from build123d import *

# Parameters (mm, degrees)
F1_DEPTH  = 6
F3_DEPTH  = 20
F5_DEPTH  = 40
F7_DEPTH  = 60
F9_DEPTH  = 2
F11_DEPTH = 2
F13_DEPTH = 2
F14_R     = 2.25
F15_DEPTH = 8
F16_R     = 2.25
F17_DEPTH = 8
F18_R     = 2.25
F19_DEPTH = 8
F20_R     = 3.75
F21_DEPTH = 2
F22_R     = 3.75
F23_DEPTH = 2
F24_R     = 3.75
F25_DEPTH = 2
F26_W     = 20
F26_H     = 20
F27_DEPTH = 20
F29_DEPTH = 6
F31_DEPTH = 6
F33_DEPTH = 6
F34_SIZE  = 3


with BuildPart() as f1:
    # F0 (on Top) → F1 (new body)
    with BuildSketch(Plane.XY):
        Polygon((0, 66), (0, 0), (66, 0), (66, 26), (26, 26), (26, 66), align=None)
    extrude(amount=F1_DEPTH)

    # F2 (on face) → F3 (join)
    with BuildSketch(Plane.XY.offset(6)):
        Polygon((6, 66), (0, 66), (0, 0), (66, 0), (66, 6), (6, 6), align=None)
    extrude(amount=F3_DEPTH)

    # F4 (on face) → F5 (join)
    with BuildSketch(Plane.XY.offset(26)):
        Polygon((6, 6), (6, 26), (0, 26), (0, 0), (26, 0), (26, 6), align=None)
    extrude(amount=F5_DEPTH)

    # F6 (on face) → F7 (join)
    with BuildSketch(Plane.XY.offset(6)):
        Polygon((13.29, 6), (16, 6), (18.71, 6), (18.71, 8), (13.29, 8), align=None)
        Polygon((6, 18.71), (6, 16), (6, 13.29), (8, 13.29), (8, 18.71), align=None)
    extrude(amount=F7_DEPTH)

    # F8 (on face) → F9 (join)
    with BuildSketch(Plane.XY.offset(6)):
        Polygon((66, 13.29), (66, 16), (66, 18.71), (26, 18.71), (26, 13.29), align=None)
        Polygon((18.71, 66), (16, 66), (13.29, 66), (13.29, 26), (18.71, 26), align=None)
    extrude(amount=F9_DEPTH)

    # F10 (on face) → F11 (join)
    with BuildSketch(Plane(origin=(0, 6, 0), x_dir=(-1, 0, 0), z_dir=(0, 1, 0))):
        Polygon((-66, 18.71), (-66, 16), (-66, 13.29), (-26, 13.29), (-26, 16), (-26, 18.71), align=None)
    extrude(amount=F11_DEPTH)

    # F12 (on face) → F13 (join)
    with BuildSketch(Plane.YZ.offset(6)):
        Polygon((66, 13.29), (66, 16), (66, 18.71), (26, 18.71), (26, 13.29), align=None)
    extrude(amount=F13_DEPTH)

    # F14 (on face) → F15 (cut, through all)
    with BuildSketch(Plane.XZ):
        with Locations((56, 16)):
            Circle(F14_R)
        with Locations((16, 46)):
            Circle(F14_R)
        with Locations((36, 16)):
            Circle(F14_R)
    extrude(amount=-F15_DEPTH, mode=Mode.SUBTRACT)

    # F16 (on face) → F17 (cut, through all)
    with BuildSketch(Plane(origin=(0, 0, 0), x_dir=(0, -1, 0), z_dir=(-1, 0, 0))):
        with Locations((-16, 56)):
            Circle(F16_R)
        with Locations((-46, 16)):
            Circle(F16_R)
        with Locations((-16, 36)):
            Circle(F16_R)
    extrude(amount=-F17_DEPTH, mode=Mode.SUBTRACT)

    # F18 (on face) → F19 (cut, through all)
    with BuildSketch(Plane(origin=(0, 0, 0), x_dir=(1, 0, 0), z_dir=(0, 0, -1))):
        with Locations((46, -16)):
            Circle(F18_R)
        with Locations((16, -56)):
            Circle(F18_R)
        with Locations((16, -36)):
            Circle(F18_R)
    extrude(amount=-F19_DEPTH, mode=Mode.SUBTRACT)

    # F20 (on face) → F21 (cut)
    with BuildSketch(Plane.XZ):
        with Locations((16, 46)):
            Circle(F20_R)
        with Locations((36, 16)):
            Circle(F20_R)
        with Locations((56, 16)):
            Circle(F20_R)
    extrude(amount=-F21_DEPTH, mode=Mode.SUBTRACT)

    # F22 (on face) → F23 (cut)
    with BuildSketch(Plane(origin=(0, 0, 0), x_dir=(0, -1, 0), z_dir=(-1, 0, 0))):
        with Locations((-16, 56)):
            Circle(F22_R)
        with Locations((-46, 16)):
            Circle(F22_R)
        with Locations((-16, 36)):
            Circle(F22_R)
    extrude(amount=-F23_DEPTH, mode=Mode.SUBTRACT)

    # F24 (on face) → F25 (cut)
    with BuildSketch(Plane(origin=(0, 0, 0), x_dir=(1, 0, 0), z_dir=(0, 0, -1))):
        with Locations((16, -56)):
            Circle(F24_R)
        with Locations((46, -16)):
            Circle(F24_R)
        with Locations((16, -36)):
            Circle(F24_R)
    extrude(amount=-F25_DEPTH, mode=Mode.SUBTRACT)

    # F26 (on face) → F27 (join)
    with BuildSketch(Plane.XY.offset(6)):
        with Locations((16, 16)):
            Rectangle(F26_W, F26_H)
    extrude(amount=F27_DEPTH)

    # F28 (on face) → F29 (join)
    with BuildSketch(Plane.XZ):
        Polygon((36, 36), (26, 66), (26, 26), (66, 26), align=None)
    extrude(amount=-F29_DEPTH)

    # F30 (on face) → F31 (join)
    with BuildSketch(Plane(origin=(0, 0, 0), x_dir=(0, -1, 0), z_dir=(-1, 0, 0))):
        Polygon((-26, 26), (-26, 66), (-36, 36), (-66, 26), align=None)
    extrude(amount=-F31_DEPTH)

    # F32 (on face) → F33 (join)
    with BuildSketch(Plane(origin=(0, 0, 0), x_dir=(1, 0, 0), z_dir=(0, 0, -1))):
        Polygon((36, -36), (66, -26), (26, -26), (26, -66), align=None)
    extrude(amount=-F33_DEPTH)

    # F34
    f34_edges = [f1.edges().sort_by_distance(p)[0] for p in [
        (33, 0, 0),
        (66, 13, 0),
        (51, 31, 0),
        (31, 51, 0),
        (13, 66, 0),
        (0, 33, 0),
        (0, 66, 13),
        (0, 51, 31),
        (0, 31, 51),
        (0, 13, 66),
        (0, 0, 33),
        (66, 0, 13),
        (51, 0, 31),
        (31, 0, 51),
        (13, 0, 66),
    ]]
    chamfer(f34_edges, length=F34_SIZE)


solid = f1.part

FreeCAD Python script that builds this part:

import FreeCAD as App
import Part
import Sketcher
Q = App.Units.Quantity


def edges_at(feature, points):
    """Names of the edges that pass closest to the given points."""
    edges = feature.Shape.Edges
    near = lambda p: min(range(len(edges)), key=lambda i: edges[i].distToShape(Part.Vertex(*p))[0])
    return sorted({f"Edge{near(p) + 1}" for p in points})

doc = App.newDocument("Part")
body = doc.addObject("PartDesign::Body", "Body")

# Sketch on XY plane
sketch1 = body.newObject("Sketcher::SketchObject", "Sketch")
sketch1.AttachmentSupport = (doc.getObject("XY_Plane"), [""])
sketch1.MapMode = "FlatFace"
sketch1.addGeometry([
    Part.LineSegment(App.Vector(0, 66, 0), App.Vector(0, 0, 0)),  # 0
    Part.LineSegment(App.Vector(0, 0, 0), App.Vector(66, 0, 0)),  # 1
    Part.LineSegment(App.Vector(66, 0, 0), App.Vector(66, 26, 0)),  # 2
    Part.LineSegment(App.Vector(66, 26, 0), App.Vector(26, 26, 0)),  # 3
    Part.LineSegment(App.Vector(26, 26, 0), App.Vector(26, 66, 0)),  # 4
    Part.LineSegment(App.Vector(26, 66, 0), App.Vector(0, 66, 0)),  # 5
], False)
sketch1.addConstraint([
    Sketcher.Constraint("Coincident", 0, 2, 1, 1),
    Sketcher.Constraint("Coincident", 1, 2, 2, 1),
    Sketcher.Constraint("Coincident", 2, 2, 3, 1),
    Sketcher.Constraint("Coincident", 3, 2, 4, 1),
    Sketcher.Constraint("Coincident", 4, 2, 5, 1),
    Sketcher.Constraint("Coincident", 5, 2, 0, 1),
    Sketcher.Constraint("Vertical", 0),
    Sketcher.Constraint("Horizontal", 1),
    Sketcher.Constraint("Vertical", 2),
    Sketcher.Constraint("Horizontal", 3),
    Sketcher.Constraint("Vertical", 4),
    Sketcher.Constraint("Horizontal", 5),
    Sketcher.Constraint("Coincident", 0, 2, -1, 1),
    Sketcher.Constraint("Equal", 1, 0),
    Sketcher.Constraint("Equal", 5, 2),
    Sketcher.Constraint("DistanceX", 1, 1, 1, 2, Q("66 mm")),
    Sketcher.Constraint("DistanceX", 3, 2, 3, 1, Q("40 mm")),
])
pad1 = body.newObject("PartDesign::Pad", "Pad")
pad1.Profile = sketch1
pad1.Length = 6

# Sketch on XY plane
sketch2 = body.newObject("Sketcher::SketchObject", "Sketch001")
sketch2.AttachmentSupport = (doc.getObject("XY_Plane"), [""])
sketch2.MapMode = "FlatFace"
sketch2.AttachmentOffset = App.Placement(App.Vector(0, 0, 6), App.Rotation())
sketch2.addGeometry([
    Part.LineSegment(App.Vector(6, 66, 0), App.Vector(0, 66, 0)),  # 0
    Part.LineSegment(App.Vector(0, 66, 0), App.Vector(0, 0, 0)),  # 1
    Part.LineSegment(App.Vector(0, 0, 0), App.Vector(66, 0, 0)),  # 2
    Part.LineSegment(App.Vector(66, 0, 0), App.Vector(66, 6, 0)),  # 3
    Part.LineSegment(App.Vector(66, 6, 0), App.Vector(6, 6, 0)),  # 4
    Part.LineSegment(App.Vector(6, 6, 0), App.Vector(6, 66, 0)),  # 5
], False)
sketch2.addConstraint([
    Sketcher.Constraint("Coincident", 0, 2, 1, 1),
    Sketcher.Constraint("Coincident", 1, 2, 2, 1),
    Sketcher.Constraint("Coincident", 2, 2, 3, 1),
    Sketcher.Constraint("Coincident", 3, 2, 4, 1),
    Sketcher.Constraint("Coincident", 4, 2, 5, 1),
    Sketcher.Constraint("Coincident", 5, 2, 0, 1),
    Sketcher.Constraint("Horizontal", 0),
    Sketcher.Constraint("Vertical", 1),
    Sketcher.Constraint("Horizontal", 2),
    Sketcher.Constraint("Vertical", 3),
    Sketcher.Constraint("Horizontal", 4),
    Sketcher.Constraint("Vertical", 5),
    Sketcher.Constraint("Coincident", 1, 2, -1, 1),
    Sketcher.Constraint("Equal", 2, 1),
    Sketcher.Constraint("Equal", 0, 3),
    Sketcher.Constraint("DistanceX", 0, 2, 0, 1, Q("6 mm")),
    Sketcher.Constraint("DistanceX", 2, 1, 2, 2, Q("66 mm")),
])
pad2 = body.newObject("PartDesign::Pad", "Pad001")
pad2.Profile = sketch2
pad2.Length = 20

# Sketch on XY plane
sketch3 = body.newObject("Sketcher::SketchObject", "Sketch002")
sketch3.AttachmentSupport = (doc.getObject("XY_Plane"), [""])
sketch3.MapMode = "FlatFace"
sketch3.AttachmentOffset = App.Placement(App.Vector(0, 0, 26), App.Rotation())
sketch3.addGeometry([
    Part.LineSegment(App.Vector(6, 6, 0), App.Vector(6, 26, 0)),  # 0
    Part.LineSegment(App.Vector(6, 26, 0), App.Vector(0, 26, 0)),  # 1
    Part.LineSegment(App.Vector(0, 26, 0), App.Vector(0, 0, 0)),  # 2
    Part.LineSegment(App.Vector(0, 0, 0), App.Vector(26, 0, 0)),  # 3
    Part.LineSegment(App.Vector(26, 0, 0), App.Vector(26, 6, 0)),  # 4
    Part.LineSegment(App.Vector(26, 6, 0), App.Vector(6, 6, 0)),  # 5
], False)
sketch3.addConstraint([
    Sketcher.Constraint("Coincident", 0, 2, 1, 1),
    Sketcher.Constraint("Coincident", 1, 2, 2, 1),
    Sketcher.Constraint("Coincident", 2, 2, 3, 1),
    Sketcher.Constraint("Coincident", 3, 2, 4, 1),
    Sketcher.Constraint("Coincident", 4, 2, 5, 1),
    Sketcher.Constraint("Coincident", 5, 2, 0, 1),
    Sketcher.Constraint("Vertical", 0),
    Sketcher.Constraint("Horizontal", 1),
    Sketcher.Constraint("Vertical", 2),
    Sketcher.Constraint("Horizontal", 3),
    Sketcher.Constraint("Vertical", 4),
    Sketcher.Constraint("Horizontal", 5),
    Sketcher.Constraint("Coincident", 2, 2, -1, 1),
    Sketcher.Constraint("Equal", 5, 0),
    Sketcher.Constraint("Equal", 3, 2),
    Sketcher.Constraint("DistanceX", 1, 2, 1, 1, Q("6 mm")),
    Sketcher.Constraint("DistanceX", 3, 1, 3, 2, Q("26 mm")),
])
pad3 = body.newObject("PartDesign::Pad", "Pad002")
pad3.Profile = sketch3
pad3.Length = 40

# Sketch on XY plane
sketch4 = body.newObject("Sketcher::SketchObject", "Sketch003")
sketch4.AttachmentSupport = (doc.getObject("XY_Plane"), [""])
sketch4.MapMode = "FlatFace"
sketch4.AttachmentOffset = App.Placement(App.Vector(0, 0, 6), App.Rotation())
sketch4.addGeometry([
    Part.LineSegment(App.Vector(13.29, 6, 0), App.Vector(18.71, 6, 0)),  # 0
    Part.LineSegment(App.Vector(18.71, 6, 0), App.Vector(18.71, 8, 0)),  # 1
    Part.LineSegment(App.Vector(18.71, 8, 0), App.Vector(13.29, 8, 0)),  # 2
    Part.LineSegment(App.Vector(13.29, 8, 0), App.Vector(13.29, 6, 0)),  # 3
    Part.LineSegment(App.Vector(6, 18.71, 0), App.Vector(6, 13.29, 0)),  # 4
    Part.LineSegment(App.Vector(6, 13.29, 0), App.Vector(8, 13.29, 0)),  # 5
    Part.LineSegment(App.Vector(8, 13.29, 0), App.Vector(8, 18.71, 0)),  # 6
    Part.LineSegment(App.Vector(8, 18.71, 0), App.Vector(6, 18.71, 0)),  # 7
], False)
sketch4.addConstraint([
    Sketcher.Constraint("Coincident", 0, 2, 1, 1),
    Sketcher.Constraint("Coincident", 1, 2, 2, 1),
    Sketcher.Constraint("Coincident", 2, 2, 3, 1),
    Sketcher.Constraint("Coincident", 3, 2, 0, 1),
    Sketcher.Constraint("Coincident", 4, 2, 5, 1),
    Sketcher.Constraint("Coincident", 5, 2, 6, 1),
    Sketcher.Constraint("Coincident", 6, 2, 7, 1),
    Sketcher.Constraint("Coincident", 7, 2, 4, 1),
    Sketcher.Constraint("Horizontal", 0),
    Sketcher.Constraint("Vertical", 1),
    Sketcher.Constraint("Horizontal", 2),
    Sketcher.Constraint("Vertical", 3),
    Sketcher.Constraint("Vertical", 4),
    Sketcher.Constraint("Horizontal", 5),
    Sketcher.Constraint("Vertical", 6),
    Sketcher.Constraint("Horizontal", 7),
    Sketcher.Constraint("Equal", 7, 1),
    Sketcher.Constraint("Equal", 2, 4),
    Sketcher.Constraint("DistanceX", 5, 1, 5, 2, Q("2 mm")),
    Sketcher.Constraint("DistanceY", -1, 1, 0, 2, Q("6 mm")),
    Sketcher.Constraint("DistanceX", -1, 1, 4, 2, Q("6 mm")),
    Sketcher.Constraint("DistanceX", 0, 1, 0, 2, Q("5.42 mm")),
    Sketcher.Constraint("DistanceX", -1, 1, 0, 2, Q("18.71 mm")),
    Sketcher.Constraint("DistanceY", -1, 1, 4, 2, Q("13.29 mm")),
])
pad4 = body.newObject("PartDesign::Pad", "Pad003")
pad4.Profile = sketch4
pad4.Length = 60

# Sketch on XY plane
sketch5 = body.newObject("Sketcher::SketchObject", "Sketch004")
sketch5.AttachmentSupport = (doc.getObject("XY_Plane"), [""])
sketch5.MapMode = "FlatFace"
sketch5.AttachmentOffset = App.Placement(App.Vector(0, 0, 6), App.Rotation())
sketch5.addGeometry([
    Part.LineSegment(App.Vector(66, 13.29, 0), App.Vector(66, 18.71, 0)),  # 0
    Part.LineSegment(App.Vector(66, 18.71, 0), App.Vector(26, 18.71, 0)),  # 1
    Part.LineSegment(App.Vector(26, 18.71, 0), App.Vector(26, 13.29, 0)),  # 2
    Part.LineSegment(App.Vector(26, 13.29, 0), App.Vector(66, 13.29, 0)),  # 3
    Part.LineSegment(App.Vector(18.71, 66, 0), App.Vector(13.29, 66, 0)),  # 4
    Part.LineSegment(App.Vector(13.29, 66, 0), App.Vector(13.29, 26, 0)),  # 5
    Part.LineSegment(App.Vector(13.29, 26, 0), App.Vector(18.71, 26, 0)),  # 6
    Part.LineSegment(App.Vector(18.71, 26, 0), App.Vector(18.71, 66, 0)),  # 7
], False)
sketch5.addConstraint([
    Sketcher.Constraint("Coincident", 0, 2, 1, 1),
    Sketcher.Constraint("Coincident", 1, 2, 2, 1),
    Sketcher.Constraint("Coincident", 2, 2, 3, 1),
    Sketcher.Constraint("Coincident", 3, 2, 0, 1),
    Sketcher.Constraint("Coincident", 4, 2, 5, 1),
    Sketcher.Constraint("Coincident", 5, 2, 6, 1),
    Sketcher.Constraint("Coincident", 6, 2, 7, 1),
    Sketcher.Constraint("Coincident", 7, 2, 4, 1),
    Sketcher.Constraint("Vertical", 0),
    Sketcher.Constraint("Horizontal", 1),
    Sketcher.Constraint("Vertical", 2),
    Sketcher.Constraint("Horizontal", 3),
    Sketcher.Constraint("Horizontal", 4),
    Sketcher.Constraint("Vertical", 5),
    Sketcher.Constraint("Horizontal", 6),
    Sketcher.Constraint("Vertical", 7),
    Sketcher.Constraint("Equal", 6, 0),
    Sketcher.Constraint("Equal", 3, 5),
    Sketcher.Constraint("DistanceX", 1, 2, 1, 1, Q("40 mm")),
    Sketcher.Constraint("DistanceX", -1, 1, 0, 2, Q("66 mm")),
    Sketcher.Constraint("DistanceY", -1, 1, 4, 2, Q("66 mm")),
    Sketcher.Constraint("DistanceX", 4, 2, 4, 1, Q("5.42 mm")),
    Sketcher.Constraint("DistanceY", -1, 1, 0, 2, Q("18.71 mm")),
    Sketcher.Constraint("DistanceX", -1, 1, 4, 2, Q("13.29 mm")),
])
pad5 = body.newObject("PartDesign::Pad", "Pad004")
pad5.Profile = sketch5
pad5.Length = 2

# Sketch on XZ plane
sketch6 = body.newObject("Sketcher::SketchObject", "Sketch005")
sketch6.AttachmentSupport = (doc.getObject("XZ_Plane"), [""])
sketch6.MapMode = "FlatFace"
sketch6.AttachmentOffset = App.Placement(App.Vector(0, 0, -6), App.Rotation())
sketch6.addGeometry([
    Part.LineSegment(App.Vector(66, 18.71, 0), App.Vector(66, 13.29, 0)),
    Part.LineSegment(App.Vector(66, 13.29, 0), App.Vector(26, 13.29, 0)),
    Part.LineSegment(App.Vector(26, 13.29, 0), App.Vector(26, 18.71, 0)),
    Part.LineSegment(App.Vector(26, 18.71, 0), App.Vector(66, 18.71, 0)),
], False)
sketch6.addConstraint([
    Sketcher.Constraint("Coincident", 0, 2, 1, 1),
    Sketcher.Constraint("Coincident", 1, 2, 2, 1),
    Sketcher.Constraint("Coincident", 2, 2, 3, 1),
    Sketcher.Constraint("Coincident", 3, 2, 0, 1),
    Sketcher.Constraint("Vertical", 0),
    Sketcher.Constraint("Horizontal", 1),
    Sketcher.Constraint("Vertical", 2),
    Sketcher.Constraint("Horizontal", 3),
    Sketcher.Constraint("DistanceX", 1, 2, 1, 1, Q("40 mm")),
    Sketcher.Constraint("DistanceX", -1, 1, 0, 2, Q("66 mm")),
    Sketcher.Constraint("DistanceY", 0, 2, 0, 1, Q("5.42 mm")),
    Sketcher.Constraint("DistanceY", -1, 1, 0, 2, Q("13.29 mm")),
])
pad6 = body.newObject("PartDesign::Pad", "Pad005")
pad6.Profile = sketch6
pad6.Length = 2
pad6.Reversed = True

# Sketch on YZ plane
sketch7 = body.newObject("Sketcher::SketchObject", "Sketch006")
sketch7.AttachmentSupport = (doc.getObject("YZ_Plane"), [""])
sketch7.MapMode = "FlatFace"
sketch7.AttachmentOffset = App.Placement(App.Vector(0, 0, 6), App.Rotation())
sketch7.addGeometry([
    Part.LineSegment(App.Vector(66, 13.29, 0), App.Vector(66, 18.71, 0)),
    Part.LineSegment(App.Vector(66, 18.71, 0), App.Vector(26, 18.71, 0)),
    Part.LineSegment(App.Vector(26, 18.71, 0), App.Vector(26, 13.29, 0)),
    Part.LineSegment(App.Vector(26, 13.29, 0), App.Vector(66, 13.29, 0)),
], False)
sketch7.addConstraint([
    Sketcher.Constraint("Coincident", 0, 2, 1, 1),
    Sketcher.Constraint("Coincident", 1, 2, 2, 1),
    Sketcher.Constraint("Coincident", 2, 2, 3, 1),
    Sketcher.Constraint("Coincident", 3, 2, 0, 1),
    Sketcher.Constraint("Vertical", 0),
    Sketcher.Constraint("Horizontal", 1),
    Sketcher.Constraint("Vertical", 2),
    Sketcher.Constraint("Horizontal", 3),
    Sketcher.Constraint("DistanceX", 1, 2, 1, 1, Q("40 mm")),
    Sketcher.Constraint("DistanceX", -1, 1, 0, 2, Q("66 mm")),
    Sketcher.Constraint("DistanceY", 0, 1, 0, 2, Q("5.42 mm")),
    Sketcher.Constraint("DistanceY", -1, 1, 0, 2, Q("18.71 mm")),
])
pad7 = body.newObject("PartDesign::Pad", "Pad006")
pad7.Profile = sketch7
pad7.Length = 2

# Sketch on XZ plane
sketch8 = body.newObject("Sketcher::SketchObject", "Sketch007")
sketch8.AttachmentSupport = (doc.getObject("XZ_Plane"), [""])
sketch8.MapMode = "FlatFace"
sketch8.addGeometry([
    Part.Circle(App.Vector(56, 16, 0), App.Vector(0, 0, 1), 2.25),
    Part.Circle(App.Vector(16, 46, 0), App.Vector(0, 0, 1), 2.25),
    Part.Circle(App.Vector(36, 16, 0), App.Vector(0, 0, 1), 2.25),
], False)
sketch8.addConstraint([
    Sketcher.Constraint("Equal", 0, 1),
    Sketcher.Constraint("Equal", 1, 2),
    Sketcher.Constraint("Horizontal", 0, 3, 2, 3),
    Sketcher.Constraint("Diameter", 0, Q("4.5 mm")),
    Sketcher.Constraint("DistanceX", -1, 1, 0, 3, Q("56 mm")),
    Sketcher.Constraint("DistanceY", -1, 1, 0, 3, Q("16 mm")),
    Sketcher.Constraint("DistanceX", -1, 1, 1, 3, Q("16 mm")),
    Sketcher.Constraint("DistanceY", -1, 1, 1, 3, Q("46 mm")),
    Sketcher.Constraint("DistanceX", -1, 1, 2, 3, Q("36 mm")),
])
pocket1 = body.newObject("PartDesign::Pocket", "Pocket")
pocket1.Profile = sketch8
pocket1.Type = "ThroughAll"

# Sketch on YZ plane
sketch9 = body.newObject("Sketcher::SketchObject", "Sketch008")
sketch9.AttachmentSupport = (doc.getObject("YZ_Plane"), [""])
sketch9.MapMode = "FlatFace"
sketch9.addGeometry([
    Part.Circle(App.Vector(16, 56, 0), App.Vector(0, 0, 1), 2.25),
    Part.Circle(App.Vector(46, 16, 0), App.Vector(0, 0, 1), 2.25),
    Part.Circle(App.Vector(16, 36, 0), App.Vector(0, 0, 1), 2.25),
], False)
sketch9.addConstraint([
    Sketcher.Constraint("Equal", 0, 1),
    Sketcher.Constraint("Equal", 1, 2),
    Sketcher.Constraint("Vertical", 0, 3, 2, 3),
    Sketcher.Constraint("Diameter", 0, Q("4.5 mm")),
    Sketcher.Constraint("DistanceX", -1, 1, 0, 3, Q("16 mm")),
    Sketcher.Constraint("DistanceY", -1, 1, 0, 3, Q("56 mm")),
    Sketcher.Constraint("DistanceX", -1, 1, 1, 3, Q("46 mm")),
    Sketcher.Constraint("DistanceY", -1, 1, 1, 3, Q("16 mm")),
    Sketcher.Constraint("DistanceY", -1, 1, 2, 3, Q("36 mm")),
])
pocket2 = body.newObject("PartDesign::Pocket", "Pocket001")
pocket2.Profile = sketch9
pocket2.Type = "ThroughAll"
pocket2.Reversed = True

# Sketch on XY plane
sketch10 = body.newObject("Sketcher::SketchObject", "Sketch009")
sketch10.AttachmentSupport = (doc.getObject("XY_Plane"), [""])
sketch10.MapMode = "FlatFace"
sketch10.addGeometry([
    Part.Circle(App.Vector(46, 16, 0), App.Vector(0, 0, 1), 2.25),
    Part.Circle(App.Vector(16, 56, 0), App.Vector(0, 0, 1), 2.25),
    Part.Circle(App.Vector(16, 36, 0), App.Vector(0, 0, 1), 2.25),
], False)
sketch10.addConstraint([
    Sketcher.Constraint("Equal", 0, 1),
    Sketcher.Constraint("Equal", 1, 2),
    Sketcher.Constraint("Vertical", 1, 3, 2, 3),
    Sketcher.Constraint("Diameter", 0, Q("4.5 mm")),
    Sketcher.Constraint("DistanceX", -1, 1, 0, 3, Q("46 mm")),
    Sketcher.Constraint("DistanceY", -1, 1, 0, 3, Q("16 mm")),
    Sketcher.Constraint("DistanceX", -1, 1, 1, 3, Q("16 mm")),
    Sketcher.Constraint("DistanceY", -1, 1, 1, 3, Q("56 mm")),
    Sketcher.Constraint("DistanceY", -1, 1, 2, 3, Q("36 mm")),
])
pocket3 = body.newObject("PartDesign::Pocket", "Pocket002")
pocket3.Profile = sketch10
pocket3.Type = "ThroughAll"
pocket3.Reversed = True

# Sketch on XZ plane
sketch11 = body.newObject("Sketcher::SketchObject", "Sketch010")
sketch11.AttachmentSupport = (doc.getObject("XZ_Plane"), [""])
sketch11.MapMode = "FlatFace"
sketch11.addGeometry([
    Part.Circle(App.Vector(16, 46, 0), App.Vector(0, 0, 1), 3.75),
    Part.Circle(App.Vector(36, 16, 0), App.Vector(0, 0, 1), 3.75),
    Part.Circle(App.Vector(56, 16, 0), App.Vector(0, 0, 1), 3.75),
], False)
sketch11.addConstraint([
    Sketcher.Constraint("Equal", 0, 1),
    Sketcher.Constraint("Equal", 1, 2),
    Sketcher.Constraint("Horizontal", 1, 3, 2, 3),
    Sketcher.Constraint("Diameter", 0, Q("7.5 mm")),
    Sketcher.Constraint("DistanceX", -1, 1, 0, 3, Q("16 mm")),
    Sketcher.Constraint("DistanceY", -1, 1, 0, 3, Q("46 mm")),
    Sketcher.Constraint("DistanceX", -1, 1, 1, 3, Q("36 mm")),
    Sketcher.Constraint("DistanceY", -1, 1, 1, 3, Q("16 mm")),
    Sketcher.Constraint("DistanceX", -1, 1, 2, 3, Q("56 mm")),
])
pocket4 = body.newObject("PartDesign::Pocket", "Pocket003")
pocket4.Profile = sketch11
pocket4.Length = 2

# Sketch on YZ plane
sketch12 = body.newObject("Sketcher::SketchObject", "Sketch011")
sketch12.AttachmentSupport = (doc.getObject("YZ_Plane"), [""])
sketch12.MapMode = "FlatFace"
sketch12.addGeometry([
    Part.Circle(App.Vector(16, 56, 0), App.Vector(0, 0, 1), 3.75),
    Part.Circle(App.Vector(46, 16, 0), App.Vector(0, 0, 1), 3.75),
    Part.Circle(App.Vector(16, 36, 0), App.Vector(0, 0, 1), 3.75),
], False)
sketch12.addConstraint([
    Sketcher.Constraint("Equal", 0, 1),
    Sketcher.Constraint("Equal", 1, 2),
    Sketcher.Constraint("Vertical", 0, 3, 2, 3),
    Sketcher.Constraint("Diameter", 0, Q("7.5 mm")),
    Sketcher.Constraint("DistanceX", -1, 1, 0, 3, Q("16 mm")),
    Sketcher.Constraint("DistanceY", -1, 1, 0, 3, Q("56 mm")),
    Sketcher.Constraint("DistanceX", -1, 1, 1, 3, Q("46 mm")),
    Sketcher.Constraint("DistanceY", -1, 1, 1, 3, Q("16 mm")),
    Sketcher.Constraint("DistanceY", -1, 1, 2, 3, Q("36 mm")),
])
pocket5 = body.newObject("PartDesign::Pocket", "Pocket004")
pocket5.Profile = sketch12
pocket5.Length = 2
pocket5.Reversed = True

# Sketch on XY plane
sketch13 = body.newObject("Sketcher::SketchObject", "Sketch012")
sketch13.AttachmentSupport = (doc.getObject("XY_Plane"), [""])
sketch13.MapMode = "FlatFace"
sketch13.addGeometry([
    Part.Circle(App.Vector(16, 56, 0), App.Vector(0, 0, 1), 3.75),
    Part.Circle(App.Vector(46, 16, 0), App.Vector(0, 0, 1), 3.75),
    Part.Circle(App.Vector(16, 36, 0), App.Vector(0, 0, 1), 3.75),
], False)
sketch13.addConstraint([
    Sketcher.Constraint("Equal", 0, 1),
    Sketcher.Constraint("Equal", 1, 2),
    Sketcher.Constraint("Vertical", 0, 3, 2, 3),
    Sketcher.Constraint("Diameter", 0, Q("7.5 mm")),
    Sketcher.Constraint("DistanceX", -1, 1, 0, 3, Q("16 mm")),
    Sketcher.Constraint("DistanceY", -1, 1, 0, 3, Q("56 mm")),
    Sketcher.Constraint("DistanceX", -1, 1, 1, 3, Q("46 mm")),
    Sketcher.Constraint("DistanceY", -1, 1, 1, 3, Q("16 mm")),
    Sketcher.Constraint("DistanceY", -1, 1, 2, 3, Q("36 mm")),
])
pocket6 = body.newObject("PartDesign::Pocket", "Pocket005")
pocket6.Profile = sketch13
pocket6.Length = 2
pocket6.Reversed = True

# Sketch on XY plane
sketch14 = body.newObject("Sketcher::SketchObject", "Sketch013")
sketch14.AttachmentSupport = (doc.getObject("XY_Plane"), [""])
sketch14.MapMode = "FlatFace"
sketch14.AttachmentOffset = App.Placement(App.Vector(0, 0, 6), App.Rotation())
sketch14.addGeometry([
    Part.LineSegment(App.Vector(6, 26, 0), App.Vector(6, 6, 0)),
    Part.LineSegment(App.Vector(6, 6, 0), App.Vector(26, 6, 0)),
    Part.LineSegment(App.Vector(26, 6, 0), App.Vector(26, 26, 0)),
    Part.LineSegment(App.Vector(26, 26, 0), App.Vector(6, 26, 0)),
], False)
sketch14.addConstraint([
    Sketcher.Constraint("Coincident", 0, 2, 1, 1),
    Sketcher.Constraint("Coincident", 1, 2, 2, 1),
    Sketcher.Constraint("Coincident", 2, 2, 3, 1),
    Sketcher.Constraint("Coincident", 3, 2, 0, 1),
    Sketcher.Constraint("Vertical", 0),
    Sketcher.Constraint("Horizontal", 1),
    Sketcher.Constraint("Vertical", 2),
    Sketcher.Constraint("Horizontal", 3),
    Sketcher.Constraint("Equal", 3, 0),
    Sketcher.Constraint("DistanceX", 1, 1, 1, 2, Q("20 mm")),
    Sketcher.Constraint("DistanceX", -1, 1, 0, 2, Q("6 mm")),
    Sketcher.Constraint("DistanceY", -1, 1, 0, 2, Q("6 mm")),
])
pad8 = body.newObject("PartDesign::Pad", "Pad007")
pad8.Profile = sketch14
pad8.Length = 20

# Sketch on XZ plane
sketch15 = body.newObject("Sketcher::SketchObject", "Sketch014")
sketch15.AttachmentSupport = (doc.getObject("XZ_Plane"), [""])
sketch15.MapMode = "FlatFace"
sketch15.addGeometry([
    Part.LineSegment(App.Vector(36, 36, 0), App.Vector(26, 66, 0)),
    Part.LineSegment(App.Vector(26, 66, 0), App.Vector(26, 26, 0)),
    Part.LineSegment(App.Vector(26, 26, 0), App.Vector(66, 26, 0)),
    Part.LineSegment(App.Vector(66, 26, 0), App.Vector(36, 36, 0)),
], False)
sketch15.addConstraint([
    Sketcher.Constraint("Coincident", 0, 2, 1, 1),
    Sketcher.Constraint("Coincident", 1, 2, 2, 1),
    Sketcher.Constraint("Coincident", 2, 2, 3, 1),
    Sketcher.Constraint("Coincident", 3, 2, 0, 1),
    Sketcher.Constraint("Vertical", 1),
    Sketcher.Constraint("Horizontal", 2),
    Sketcher.Constraint("Equal", 2, 1),
    Sketcher.Constraint("Equal", 0, 3),
    Sketcher.Constraint("DistanceX", 2, 1, 2, 2, Q("40 mm")),
    Sketcher.Constraint("DistanceX", -1, 1, 0, 2, Q("26 mm")),
    Sketcher.Constraint("DistanceY", -1, 1, 0, 2, Q("66 mm")),
    Sketcher.Constraint("DistanceX", -1, 1, 3, 2, Q("36 mm")),
])
pad9 = body.newObject("PartDesign::Pad", "Pad008")
pad9.Profile = sketch15
pad9.Length = 6
pad9.Reversed = True

# Sketch on YZ plane
sketch16 = body.newObject("Sketcher::SketchObject", "Sketch015")
sketch16.AttachmentSupport = (doc.getObject("YZ_Plane"), [""])
sketch16.MapMode = "FlatFace"
sketch16.addGeometry([
    Part.LineSegment(App.Vector(26, 26, 0), App.Vector(26, 66, 0)),
    Part.LineSegment(App.Vector(26, 66, 0), App.Vector(36, 36, 0)),
    Part.LineSegment(App.Vector(36, 36, 0), App.Vector(66, 26, 0)),
    Part.LineSegment(App.Vector(66, 26, 0), App.Vector(26, 26, 0)),
], False)
sketch16.addConstraint([
    Sketcher.Constraint("Coincident", 0, 2, 1, 1),
    Sketcher.Constraint("Coincident", 1, 2, 2, 1),
    Sketcher.Constraint("Coincident", 2, 2, 3, 1),
    Sketcher.Constraint("Coincident", 3, 2, 0, 1),
    Sketcher.Constraint("Vertical", 0),
    Sketcher.Constraint("Horizontal", 3),
    Sketcher.Constraint("Equal", 3, 0),
    Sketcher.Constraint("Equal", 1, 2),
    Sketcher.Constraint("DistanceX", 3, 2, 3, 1, Q("40 mm")),
    Sketcher.Constraint("DistanceX", -1, 1, 0, 2, Q("26 mm")),
    Sketcher.Constraint("DistanceY", -1, 1, 0, 2, Q("66 mm")),
    Sketcher.Constraint("DistanceX", -1, 1, 1, 2, Q("36 mm")),
])
pad10 = body.newObject("PartDesign::Pad", "Pad009")
pad10.Profile = sketch16
pad10.Length = 6

# Sketch on XY plane
sketch17 = body.newObject("Sketcher::SketchObject", "Sketch016")
sketch17.AttachmentSupport = (doc.getObject("XY_Plane"), [""])
sketch17.MapMode = "FlatFace"
sketch17.addGeometry([
    Part.LineSegment(App.Vector(36, 36, 0), App.Vector(66, 26, 0)),
    Part.LineSegment(App.Vector(66, 26, 0), App.Vector(26, 26, 0)),
    Part.LineSegment(App.Vector(26, 26, 0), App.Vector(26, 66, 0)),
    Part.LineSegment(App.Vector(26, 66, 0), App.Vector(36, 36, 0)),
], False)
sketch17.addConstraint([
    Sketcher.Constraint("Coincident", 0, 2, 1, 1),
    Sketcher.Constraint("Coincident", 1, 2, 2, 1),
    Sketcher.Constraint("Coincident", 2, 2, 3, 1),
    Sketcher.Constraint("Coincident", 3, 2, 0, 1),
    Sketcher.Constraint("Horizontal", 1),
    Sketcher.Constraint("Vertical", 2),
    Sketcher.Constraint("Equal", 1, 2),
    Sketcher.Constraint("Equal", 0, 3),
    Sketcher.Constraint("DistanceX", 1, 2, 1, 1, Q("40 mm")),
    Sketcher.Constraint("DistanceX", -1, 1, 0, 2, Q("66 mm")),
    Sketcher.Constraint("DistanceY", -1, 1, 0, 2, Q("26 mm")),
    Sketcher.Constraint("DistanceX", -1, 1, 3, 2, Q("36 mm")),
])
pad11 = body.newObject("PartDesign::Pad", "Pad010")
pad11.Profile = sketch17
pad11.Length = 6
doc.recompute()

chamfer = body.newObject("PartDesign::Chamfer", "Chamfer")
chamfer.Base = (pad11, edges_at(pad11, [
    (33, 0, 0),
    (66, 13, 0),
    (51, 31, 0),
    (31, 51, 0),
    (13, 66, 0),
    (0, 33, 0),
    (0, 66, 13),
    (0, 51, 31),
    (0, 31, 51),
    (0, 13, 66),
    (0, 0, 33),
    (66, 0, 13),
    (51, 0, 31),
    (31, 0, 51),
    (13, 0, 66),
]))
chamfer.Size = 3

doc.recompute()
